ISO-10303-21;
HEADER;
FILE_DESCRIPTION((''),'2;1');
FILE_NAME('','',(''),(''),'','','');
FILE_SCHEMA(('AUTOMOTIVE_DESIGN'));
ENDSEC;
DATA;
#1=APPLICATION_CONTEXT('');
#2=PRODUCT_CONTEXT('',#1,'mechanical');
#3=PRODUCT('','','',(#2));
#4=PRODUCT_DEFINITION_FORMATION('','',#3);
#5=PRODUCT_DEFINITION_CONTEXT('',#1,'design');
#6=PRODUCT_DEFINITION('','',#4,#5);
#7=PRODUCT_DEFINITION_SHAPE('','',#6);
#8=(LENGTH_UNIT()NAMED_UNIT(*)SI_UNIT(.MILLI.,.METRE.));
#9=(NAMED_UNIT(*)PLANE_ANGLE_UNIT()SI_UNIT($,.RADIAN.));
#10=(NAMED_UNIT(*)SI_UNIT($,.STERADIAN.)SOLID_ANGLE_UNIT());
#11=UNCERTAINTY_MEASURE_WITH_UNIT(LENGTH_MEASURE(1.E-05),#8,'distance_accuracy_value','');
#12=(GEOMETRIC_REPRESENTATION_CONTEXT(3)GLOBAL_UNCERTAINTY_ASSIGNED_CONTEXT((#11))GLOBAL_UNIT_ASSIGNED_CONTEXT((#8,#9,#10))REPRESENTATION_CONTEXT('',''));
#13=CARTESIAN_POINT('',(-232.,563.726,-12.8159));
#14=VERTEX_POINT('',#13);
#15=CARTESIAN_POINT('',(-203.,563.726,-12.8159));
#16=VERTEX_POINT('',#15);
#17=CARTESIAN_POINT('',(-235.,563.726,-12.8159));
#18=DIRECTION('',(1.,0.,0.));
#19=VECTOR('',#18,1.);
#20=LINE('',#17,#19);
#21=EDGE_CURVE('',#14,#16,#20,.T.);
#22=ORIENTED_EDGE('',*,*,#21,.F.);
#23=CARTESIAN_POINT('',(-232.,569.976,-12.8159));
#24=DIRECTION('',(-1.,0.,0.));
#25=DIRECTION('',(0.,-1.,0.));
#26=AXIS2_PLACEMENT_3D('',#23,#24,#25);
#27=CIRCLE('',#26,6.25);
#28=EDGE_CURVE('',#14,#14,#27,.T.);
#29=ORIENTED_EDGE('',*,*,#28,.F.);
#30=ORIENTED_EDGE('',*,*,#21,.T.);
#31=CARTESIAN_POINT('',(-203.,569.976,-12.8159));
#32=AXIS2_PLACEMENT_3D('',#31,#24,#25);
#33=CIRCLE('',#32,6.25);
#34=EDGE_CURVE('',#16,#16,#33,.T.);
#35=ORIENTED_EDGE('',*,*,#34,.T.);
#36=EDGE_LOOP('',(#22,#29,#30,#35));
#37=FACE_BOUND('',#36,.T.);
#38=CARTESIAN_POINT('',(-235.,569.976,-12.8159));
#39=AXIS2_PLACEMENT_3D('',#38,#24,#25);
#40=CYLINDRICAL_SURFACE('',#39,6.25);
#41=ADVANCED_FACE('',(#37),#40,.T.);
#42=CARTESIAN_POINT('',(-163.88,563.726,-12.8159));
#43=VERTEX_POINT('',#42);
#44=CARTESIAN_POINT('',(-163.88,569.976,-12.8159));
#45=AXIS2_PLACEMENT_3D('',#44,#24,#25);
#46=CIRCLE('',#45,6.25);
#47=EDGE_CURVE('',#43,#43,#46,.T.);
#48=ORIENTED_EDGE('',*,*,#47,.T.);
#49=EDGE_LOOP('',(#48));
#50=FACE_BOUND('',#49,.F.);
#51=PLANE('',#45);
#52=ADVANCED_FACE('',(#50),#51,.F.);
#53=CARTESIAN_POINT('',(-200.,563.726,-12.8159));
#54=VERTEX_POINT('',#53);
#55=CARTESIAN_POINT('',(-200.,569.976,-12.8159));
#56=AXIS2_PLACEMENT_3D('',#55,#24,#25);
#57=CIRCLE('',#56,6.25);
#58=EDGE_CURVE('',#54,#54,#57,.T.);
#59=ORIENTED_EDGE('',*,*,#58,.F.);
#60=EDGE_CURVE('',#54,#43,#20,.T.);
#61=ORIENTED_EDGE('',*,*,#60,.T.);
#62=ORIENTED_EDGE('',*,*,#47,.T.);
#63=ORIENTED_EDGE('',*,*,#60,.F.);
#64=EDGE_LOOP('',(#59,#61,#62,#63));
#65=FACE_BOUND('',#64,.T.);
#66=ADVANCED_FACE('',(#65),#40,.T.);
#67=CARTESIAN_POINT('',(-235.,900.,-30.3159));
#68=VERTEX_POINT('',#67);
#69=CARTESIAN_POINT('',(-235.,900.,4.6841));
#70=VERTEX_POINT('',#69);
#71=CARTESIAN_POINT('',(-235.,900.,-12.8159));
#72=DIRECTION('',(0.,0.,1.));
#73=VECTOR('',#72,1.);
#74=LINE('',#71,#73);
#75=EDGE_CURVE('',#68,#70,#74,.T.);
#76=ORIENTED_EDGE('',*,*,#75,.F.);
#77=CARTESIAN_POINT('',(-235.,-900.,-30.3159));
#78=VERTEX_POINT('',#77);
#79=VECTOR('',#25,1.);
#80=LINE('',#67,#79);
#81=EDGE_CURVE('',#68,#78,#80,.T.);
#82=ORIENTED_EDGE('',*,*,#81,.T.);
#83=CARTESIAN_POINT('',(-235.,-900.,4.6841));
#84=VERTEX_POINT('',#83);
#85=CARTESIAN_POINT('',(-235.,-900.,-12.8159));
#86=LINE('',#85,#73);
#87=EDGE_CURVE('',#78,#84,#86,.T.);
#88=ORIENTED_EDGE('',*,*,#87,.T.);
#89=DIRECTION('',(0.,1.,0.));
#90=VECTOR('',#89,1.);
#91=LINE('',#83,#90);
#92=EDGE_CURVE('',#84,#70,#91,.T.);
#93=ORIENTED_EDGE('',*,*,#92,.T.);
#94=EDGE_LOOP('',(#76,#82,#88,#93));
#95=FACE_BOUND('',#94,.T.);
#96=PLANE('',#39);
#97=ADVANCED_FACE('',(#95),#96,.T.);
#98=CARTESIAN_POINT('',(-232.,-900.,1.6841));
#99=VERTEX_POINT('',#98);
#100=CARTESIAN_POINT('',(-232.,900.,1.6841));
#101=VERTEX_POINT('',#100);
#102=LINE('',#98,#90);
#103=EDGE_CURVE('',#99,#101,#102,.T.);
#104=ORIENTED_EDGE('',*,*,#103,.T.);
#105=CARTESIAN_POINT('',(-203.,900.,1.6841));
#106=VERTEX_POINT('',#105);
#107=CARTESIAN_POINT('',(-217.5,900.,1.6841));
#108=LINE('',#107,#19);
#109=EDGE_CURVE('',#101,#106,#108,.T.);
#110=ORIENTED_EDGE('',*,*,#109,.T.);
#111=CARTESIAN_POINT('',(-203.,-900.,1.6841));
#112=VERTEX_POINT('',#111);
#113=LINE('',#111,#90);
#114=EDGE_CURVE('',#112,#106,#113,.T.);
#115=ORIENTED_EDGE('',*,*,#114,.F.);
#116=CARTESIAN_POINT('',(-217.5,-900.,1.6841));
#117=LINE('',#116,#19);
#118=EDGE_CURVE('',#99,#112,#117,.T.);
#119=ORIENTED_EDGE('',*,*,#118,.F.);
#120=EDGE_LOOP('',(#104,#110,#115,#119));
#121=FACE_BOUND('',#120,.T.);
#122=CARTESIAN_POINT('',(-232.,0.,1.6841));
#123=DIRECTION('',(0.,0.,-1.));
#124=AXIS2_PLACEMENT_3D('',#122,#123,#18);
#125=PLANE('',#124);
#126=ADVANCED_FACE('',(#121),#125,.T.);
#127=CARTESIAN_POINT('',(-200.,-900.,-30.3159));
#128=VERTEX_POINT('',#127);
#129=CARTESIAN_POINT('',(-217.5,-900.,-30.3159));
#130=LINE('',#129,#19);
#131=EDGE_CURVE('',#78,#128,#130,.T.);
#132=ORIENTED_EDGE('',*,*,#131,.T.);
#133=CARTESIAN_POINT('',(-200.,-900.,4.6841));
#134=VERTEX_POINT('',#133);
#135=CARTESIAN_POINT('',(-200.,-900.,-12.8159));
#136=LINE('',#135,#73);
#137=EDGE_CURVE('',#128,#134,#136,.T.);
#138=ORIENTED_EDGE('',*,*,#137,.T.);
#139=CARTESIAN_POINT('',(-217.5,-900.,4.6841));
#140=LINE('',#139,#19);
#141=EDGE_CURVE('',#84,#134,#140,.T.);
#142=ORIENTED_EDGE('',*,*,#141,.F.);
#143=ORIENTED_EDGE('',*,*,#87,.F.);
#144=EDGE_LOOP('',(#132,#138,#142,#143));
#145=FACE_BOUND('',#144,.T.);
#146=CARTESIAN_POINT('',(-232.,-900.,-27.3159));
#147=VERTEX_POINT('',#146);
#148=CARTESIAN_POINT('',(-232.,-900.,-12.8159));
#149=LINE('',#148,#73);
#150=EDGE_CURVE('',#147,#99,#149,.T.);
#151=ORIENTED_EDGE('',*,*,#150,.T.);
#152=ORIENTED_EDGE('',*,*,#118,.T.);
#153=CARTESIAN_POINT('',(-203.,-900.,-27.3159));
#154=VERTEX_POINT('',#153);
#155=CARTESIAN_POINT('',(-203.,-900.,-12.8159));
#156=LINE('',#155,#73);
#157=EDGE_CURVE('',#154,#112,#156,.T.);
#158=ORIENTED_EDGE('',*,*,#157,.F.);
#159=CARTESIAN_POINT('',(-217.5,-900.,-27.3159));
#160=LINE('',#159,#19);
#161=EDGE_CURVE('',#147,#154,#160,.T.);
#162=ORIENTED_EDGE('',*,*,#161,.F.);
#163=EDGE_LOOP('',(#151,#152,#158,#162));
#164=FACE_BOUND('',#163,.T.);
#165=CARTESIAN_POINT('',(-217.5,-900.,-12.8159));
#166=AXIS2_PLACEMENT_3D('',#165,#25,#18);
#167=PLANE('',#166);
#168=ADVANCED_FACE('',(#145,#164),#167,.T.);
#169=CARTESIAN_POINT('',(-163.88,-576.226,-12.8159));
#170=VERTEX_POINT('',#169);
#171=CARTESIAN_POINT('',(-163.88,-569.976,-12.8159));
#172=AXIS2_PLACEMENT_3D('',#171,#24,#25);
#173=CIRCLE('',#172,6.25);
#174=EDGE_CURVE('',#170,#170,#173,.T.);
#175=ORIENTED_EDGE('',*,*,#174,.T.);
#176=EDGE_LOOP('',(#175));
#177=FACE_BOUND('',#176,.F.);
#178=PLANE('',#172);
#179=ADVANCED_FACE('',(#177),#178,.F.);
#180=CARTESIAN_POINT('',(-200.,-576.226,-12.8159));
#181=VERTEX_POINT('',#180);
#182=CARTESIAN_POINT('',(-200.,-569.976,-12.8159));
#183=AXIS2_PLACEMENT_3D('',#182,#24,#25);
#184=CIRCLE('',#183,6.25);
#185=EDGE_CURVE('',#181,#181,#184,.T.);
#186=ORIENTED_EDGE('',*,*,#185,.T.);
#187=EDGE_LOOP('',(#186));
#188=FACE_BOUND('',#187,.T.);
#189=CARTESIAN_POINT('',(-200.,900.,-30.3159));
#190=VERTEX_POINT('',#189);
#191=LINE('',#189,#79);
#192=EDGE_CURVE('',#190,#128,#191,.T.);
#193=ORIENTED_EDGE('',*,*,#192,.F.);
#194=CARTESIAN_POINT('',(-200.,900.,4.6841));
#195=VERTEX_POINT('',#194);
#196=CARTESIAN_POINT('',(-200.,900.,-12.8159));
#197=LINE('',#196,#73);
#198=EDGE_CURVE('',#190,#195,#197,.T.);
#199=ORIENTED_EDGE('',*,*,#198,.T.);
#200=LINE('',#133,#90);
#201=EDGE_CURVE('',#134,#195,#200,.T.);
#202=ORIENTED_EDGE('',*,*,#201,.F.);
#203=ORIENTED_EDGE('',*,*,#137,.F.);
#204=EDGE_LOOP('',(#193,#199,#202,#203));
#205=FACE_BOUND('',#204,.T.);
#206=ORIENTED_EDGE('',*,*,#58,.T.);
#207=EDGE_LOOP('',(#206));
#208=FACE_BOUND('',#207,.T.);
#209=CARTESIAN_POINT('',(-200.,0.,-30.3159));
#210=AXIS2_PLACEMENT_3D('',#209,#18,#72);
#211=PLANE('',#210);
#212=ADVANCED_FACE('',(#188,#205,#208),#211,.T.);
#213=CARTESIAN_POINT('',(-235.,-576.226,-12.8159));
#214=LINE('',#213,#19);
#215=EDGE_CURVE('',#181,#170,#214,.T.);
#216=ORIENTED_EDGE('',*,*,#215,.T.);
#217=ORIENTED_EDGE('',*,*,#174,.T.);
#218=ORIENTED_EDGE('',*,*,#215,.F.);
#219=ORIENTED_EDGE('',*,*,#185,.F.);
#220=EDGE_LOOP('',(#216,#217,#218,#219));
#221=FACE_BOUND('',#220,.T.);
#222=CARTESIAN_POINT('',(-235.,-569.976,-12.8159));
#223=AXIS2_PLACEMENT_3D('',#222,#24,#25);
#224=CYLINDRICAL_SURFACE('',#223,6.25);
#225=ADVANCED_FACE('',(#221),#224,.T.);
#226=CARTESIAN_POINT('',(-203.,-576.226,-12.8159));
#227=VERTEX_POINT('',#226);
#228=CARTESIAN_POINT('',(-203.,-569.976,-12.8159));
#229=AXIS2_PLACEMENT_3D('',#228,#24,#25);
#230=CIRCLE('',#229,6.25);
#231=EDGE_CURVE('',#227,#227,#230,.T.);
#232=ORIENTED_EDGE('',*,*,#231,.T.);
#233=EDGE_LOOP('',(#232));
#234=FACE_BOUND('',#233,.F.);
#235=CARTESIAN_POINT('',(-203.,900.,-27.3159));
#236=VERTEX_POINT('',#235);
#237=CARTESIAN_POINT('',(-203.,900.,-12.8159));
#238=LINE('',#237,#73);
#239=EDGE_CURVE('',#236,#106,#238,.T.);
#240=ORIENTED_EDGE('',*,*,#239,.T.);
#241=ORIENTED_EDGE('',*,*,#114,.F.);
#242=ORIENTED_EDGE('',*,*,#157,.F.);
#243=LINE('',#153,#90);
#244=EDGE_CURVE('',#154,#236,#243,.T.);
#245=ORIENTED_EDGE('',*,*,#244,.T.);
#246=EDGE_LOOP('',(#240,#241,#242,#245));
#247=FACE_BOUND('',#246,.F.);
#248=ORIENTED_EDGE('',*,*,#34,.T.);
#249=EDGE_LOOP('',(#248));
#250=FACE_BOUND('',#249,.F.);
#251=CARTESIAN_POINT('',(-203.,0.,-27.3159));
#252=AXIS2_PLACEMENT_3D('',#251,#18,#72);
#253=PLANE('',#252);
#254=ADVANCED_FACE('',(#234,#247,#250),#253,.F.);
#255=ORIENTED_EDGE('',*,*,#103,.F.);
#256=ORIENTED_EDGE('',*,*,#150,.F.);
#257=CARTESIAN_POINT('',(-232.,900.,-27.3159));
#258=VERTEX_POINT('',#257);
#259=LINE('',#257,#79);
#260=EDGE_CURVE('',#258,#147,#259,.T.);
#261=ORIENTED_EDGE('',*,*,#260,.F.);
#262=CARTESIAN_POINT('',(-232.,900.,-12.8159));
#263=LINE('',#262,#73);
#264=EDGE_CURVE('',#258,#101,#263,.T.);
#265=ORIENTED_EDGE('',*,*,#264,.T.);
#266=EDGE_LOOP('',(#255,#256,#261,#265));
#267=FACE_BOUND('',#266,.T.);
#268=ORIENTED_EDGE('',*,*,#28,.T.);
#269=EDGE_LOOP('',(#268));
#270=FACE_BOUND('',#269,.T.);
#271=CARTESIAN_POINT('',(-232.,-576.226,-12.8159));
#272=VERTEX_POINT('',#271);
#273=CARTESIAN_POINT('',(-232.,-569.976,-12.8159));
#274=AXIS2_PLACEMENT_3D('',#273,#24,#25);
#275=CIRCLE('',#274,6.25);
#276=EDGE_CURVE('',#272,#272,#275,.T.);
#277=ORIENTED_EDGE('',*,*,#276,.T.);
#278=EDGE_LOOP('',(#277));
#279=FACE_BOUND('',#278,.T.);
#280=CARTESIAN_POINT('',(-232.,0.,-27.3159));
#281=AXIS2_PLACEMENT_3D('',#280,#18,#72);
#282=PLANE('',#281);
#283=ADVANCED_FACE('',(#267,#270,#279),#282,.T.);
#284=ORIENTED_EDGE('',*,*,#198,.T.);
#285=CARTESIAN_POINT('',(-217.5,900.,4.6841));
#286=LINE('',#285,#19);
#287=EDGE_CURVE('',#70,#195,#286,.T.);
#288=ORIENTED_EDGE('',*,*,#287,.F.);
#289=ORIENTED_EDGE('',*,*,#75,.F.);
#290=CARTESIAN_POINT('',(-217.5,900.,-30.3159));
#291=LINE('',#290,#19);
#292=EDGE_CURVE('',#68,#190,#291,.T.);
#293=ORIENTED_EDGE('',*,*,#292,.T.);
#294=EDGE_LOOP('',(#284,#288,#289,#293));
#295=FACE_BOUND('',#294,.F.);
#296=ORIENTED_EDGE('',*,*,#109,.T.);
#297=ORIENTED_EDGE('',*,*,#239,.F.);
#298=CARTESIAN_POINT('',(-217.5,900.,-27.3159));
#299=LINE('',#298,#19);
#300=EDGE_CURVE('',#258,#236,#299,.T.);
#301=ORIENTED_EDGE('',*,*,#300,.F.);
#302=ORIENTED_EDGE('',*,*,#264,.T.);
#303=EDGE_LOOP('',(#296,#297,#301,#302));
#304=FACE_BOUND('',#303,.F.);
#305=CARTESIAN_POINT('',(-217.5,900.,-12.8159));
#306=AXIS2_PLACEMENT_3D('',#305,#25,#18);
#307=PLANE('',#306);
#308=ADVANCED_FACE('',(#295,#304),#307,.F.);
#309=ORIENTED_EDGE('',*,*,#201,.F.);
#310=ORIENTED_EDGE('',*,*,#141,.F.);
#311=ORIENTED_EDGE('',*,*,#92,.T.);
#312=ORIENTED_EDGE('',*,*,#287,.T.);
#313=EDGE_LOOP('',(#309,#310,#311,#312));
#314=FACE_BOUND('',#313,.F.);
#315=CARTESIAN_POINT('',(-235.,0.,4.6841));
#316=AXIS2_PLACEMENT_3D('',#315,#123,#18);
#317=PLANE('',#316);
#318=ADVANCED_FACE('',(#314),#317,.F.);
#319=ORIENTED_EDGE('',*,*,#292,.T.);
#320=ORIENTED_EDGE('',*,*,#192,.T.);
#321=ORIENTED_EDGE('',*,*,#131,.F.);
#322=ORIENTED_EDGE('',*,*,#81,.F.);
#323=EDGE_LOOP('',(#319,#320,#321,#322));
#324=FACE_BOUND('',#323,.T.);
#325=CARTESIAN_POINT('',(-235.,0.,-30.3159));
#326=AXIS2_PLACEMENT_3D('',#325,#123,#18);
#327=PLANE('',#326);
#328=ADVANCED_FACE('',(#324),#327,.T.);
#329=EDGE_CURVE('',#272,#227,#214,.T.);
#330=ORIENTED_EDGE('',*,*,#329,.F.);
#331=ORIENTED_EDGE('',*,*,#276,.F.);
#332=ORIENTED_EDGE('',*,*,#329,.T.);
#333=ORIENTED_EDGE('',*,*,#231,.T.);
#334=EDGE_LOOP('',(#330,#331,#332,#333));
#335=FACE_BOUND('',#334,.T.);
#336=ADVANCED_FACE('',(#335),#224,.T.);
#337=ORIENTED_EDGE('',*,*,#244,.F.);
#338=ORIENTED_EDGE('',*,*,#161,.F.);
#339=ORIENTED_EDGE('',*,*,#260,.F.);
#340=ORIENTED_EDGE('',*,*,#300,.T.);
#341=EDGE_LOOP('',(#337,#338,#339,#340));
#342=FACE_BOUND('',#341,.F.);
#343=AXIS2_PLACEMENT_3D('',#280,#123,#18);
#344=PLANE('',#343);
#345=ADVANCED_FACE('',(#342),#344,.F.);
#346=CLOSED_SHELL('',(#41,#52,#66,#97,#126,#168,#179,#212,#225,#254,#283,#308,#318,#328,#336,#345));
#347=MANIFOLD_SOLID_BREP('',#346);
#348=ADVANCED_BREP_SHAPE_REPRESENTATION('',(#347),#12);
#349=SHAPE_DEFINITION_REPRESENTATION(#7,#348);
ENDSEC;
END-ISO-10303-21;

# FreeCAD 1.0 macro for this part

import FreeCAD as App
import Part
import Sketcher
Q = App.Units.Quantity


def add_polygon(sketch, points):
    """Adds a closed chain of lines whose ends are joined by coincident constraints."""
    first, n = sketch.GeometryCount, len(points)
    for a, b in zip(points, points[1:] + points[:1]):
        sketch.addGeometry(Part.LineSegment(App.Vector(*a, 0), App.Vector(*b, 0)), False)
    for i in range(n):
        sketch.addConstraint(Sketcher.Constraint("Coincident", first + i, 2, first + (i + 1) % n, 1))

doc = App.newDocument("Part")
body = doc.addObject("PartDesign::Body", "Body")

sketch1 = body.newObject("Sketcher::SketchObject", "Sketch")
sketch1.AttachmentSupport = (doc.getObject("XZ_Plane"), [""])
sketch1.MapMode = "FlatFace"
add_polygon(sketch1, [(-235, 5), (-235, -30), (-200, -30), (-200, 5)])
add_polygon(sketch1, [(-203, -27), (-232, -27), (-232, 2), (-203, 2)])
sketch1.addConstraint([
    Sketcher.Constraint("Vertical", 0),
    Sketcher.Constraint("Horizontal", 1),
    Sketcher.Constraint("Vertical", 2),
    Sketcher.Constraint("Horizontal", 3),
    Sketcher.Constraint("Horizontal", 4),
    Sketcher.Constraint("Vertical", 5),
    Sketcher.Constraint("Horizontal", 6),
    Sketcher.Constraint("Vertical", 7),
    Sketcher.Constraint("Equal", 3, 0),
    Sketcher.Constraint("Equal", 6, 5),
    Sketcher.Constraint("DistanceX", 1, 1, 1, 2, Q("35 mm")),
    Sketcher.Constraint("DistanceX", 4, 2, 4, 1, Q("29 mm")),
    Sketcher.Constraint("DistanceX", 0, 2, -1, 1, Q("235 mm")),
    Sketcher.Constraint("DistanceX", 4, 2, -1, 1, Q("232 mm")),
    Sketcher.Constraint("DistanceY", 0, 2, 4, 2, Q("3 mm")),
    Sketcher.Constraint("DistanceY", 0, 2, -1, 1, Q("30.3159 mm")),
])
pad1 = body.newObject("PartDesign::Pad", "Pad")
pad1.Profile = sketch1
pad1.Length = 1800
pad1.Midplane = True

sketch2 = body.newObject("Sketcher::SketchObject", "Sketch001")
sketch2.AttachmentSupport = (doc.getObject("YZ_Plane"), [""])
sketch2.MapMode = "FlatFace"
sketch2.AttachmentOffset = App.Placement(App.Vector(0, 0, -235), App.Rotation())
sketch2.addGeometry([
    Part.Circle(App.Vector(570, -13, 0), App.Vector(0, 0, 1), 6),
    Part.Circle(App.Vector(-570, -13, 0), App.Vector(0, 0, 1), 6),
], False)
sketch2.addConstraint([
    Sketcher.Constraint("Equal", 0, 1),
    Sketcher.Constraint("Symmetric", 0, 3, 1, 3, -2),
    Sketcher.Constraint("Diameter", 0, Q("12.5 mm")),
    Sketcher.Constraint("DistanceX", -1, 1, 0, 3, Q("569.976 mm")),
    Sketcher.Constraint("DistanceY", 0, 3, -1, 1, Q("12.8159 mm")),
])
pad2 = body.newObject("PartDesign::Pad", "Pad001")
pad2.Profile = sketch2
pad2.Length = 71.12

doc.recompute()
